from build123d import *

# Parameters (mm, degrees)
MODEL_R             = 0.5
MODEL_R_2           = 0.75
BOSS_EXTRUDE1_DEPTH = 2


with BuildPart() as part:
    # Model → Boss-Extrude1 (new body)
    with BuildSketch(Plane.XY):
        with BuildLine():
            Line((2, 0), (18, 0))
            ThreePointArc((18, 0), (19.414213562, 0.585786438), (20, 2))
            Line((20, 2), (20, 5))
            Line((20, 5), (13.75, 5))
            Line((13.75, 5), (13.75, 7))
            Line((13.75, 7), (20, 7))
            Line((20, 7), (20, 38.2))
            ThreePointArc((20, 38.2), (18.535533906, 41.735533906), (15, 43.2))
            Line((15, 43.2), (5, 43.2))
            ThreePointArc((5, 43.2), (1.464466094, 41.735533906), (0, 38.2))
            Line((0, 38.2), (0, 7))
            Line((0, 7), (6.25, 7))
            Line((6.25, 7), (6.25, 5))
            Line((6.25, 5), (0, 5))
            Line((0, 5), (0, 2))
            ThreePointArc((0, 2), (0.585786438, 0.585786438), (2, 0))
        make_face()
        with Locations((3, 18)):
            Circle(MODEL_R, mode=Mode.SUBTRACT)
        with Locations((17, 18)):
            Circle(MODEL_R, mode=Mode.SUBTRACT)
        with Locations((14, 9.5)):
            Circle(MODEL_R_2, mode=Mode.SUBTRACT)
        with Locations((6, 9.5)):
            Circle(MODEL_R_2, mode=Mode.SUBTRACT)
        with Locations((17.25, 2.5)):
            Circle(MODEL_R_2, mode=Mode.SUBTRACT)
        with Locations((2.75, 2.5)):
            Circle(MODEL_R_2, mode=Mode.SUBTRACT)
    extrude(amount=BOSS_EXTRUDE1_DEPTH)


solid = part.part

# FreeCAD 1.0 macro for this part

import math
import FreeCAD as App
import Part
import Sketcher
from FreeCAD import Vector
Q = App.Units.Quantity

doc = App.newDocument("Part")
params = doc.addObject("Spreadsheet::Sheet", "Params")
for row, (alias, value) in enumerate([
    ("sketch1_diameter", "1 mm"),
    ("sketch1_radius", "2 mm"),
    ("sketch1_radius2", "5 mm"),
    ("sketch1_diameter2", "1.5 mm"),
    ("sketch1_width", "16 mm"),
    ("pad1_length", "2 mm"),
], start=1):
    params.set(f"A{row}", alias)
    params.set(f"B{row}", "=" + value)
    params.setAlias(f"B{row}", alias)

body = doc.addObject("PartDesign::Body", "Body")

sketch1 = doc.addObject("Sketcher::SketchObject", "Sketch")
body.addObject(sketch1)
sketch1.AttachmentSupport = (doc.XY_Plane, [""])
sketch1.MapMode = "FlatFace"
sketch1.addGeometry([
    Part.LineSegment(Vector(2, 0, 0), Vector(18, 0, 0)),
    Part.ArcOfCircle(Part.Circle(Vector(18, 2, 0), Vector(0, 0, 1), 2), math.radians(-90), math.radians(0)),
    Part.LineSegment(Vector(20, 2, 0), Vector(20, 5, 0)),
    Part.LineSegment(Vector(20, 5, 0), Vector(13.75, 5, 0)),
    Part.LineSegment(Vector(13.75, 5, 0), Vector(13.75, 7, 0)),
    Part.LineSegment(Vector(13.75, 7, 0), Vector(20, 7, 0)),
    Part.LineSegment(Vector(20, 7, 0), Vector(20, 38.2, 0)),
    Part.ArcOfCircle(Part.Circle(Vector(15, 38.2, 0), Vector(0, 0, 1), 5), math.radians(0), math.radians(90)),
    Part.LineSegment(Vector(15, 43.2, 0), Vector(5, 43.2, 0)),
    Part.ArcOfCircle(Part.Circle(Vector(5, 38.2, 0), Vector(0, 0, 1), 5), math.radians(90), math.radians(180)),
    Part.LineSegment(Vector(0, 38.2, 0), Vector(0, 7, 0)),
    Part.LineSegment(Vector(0, 7, 0), Vector(6.25, 7, 0)),
    Part.LineSegment(Vector(6.25, 7, 0), Vector(6.25, 5, 0)),
    Part.LineSegment(Vector(6.25, 5, 0), Vector(0, 5, 0)),
    Part.LineSegment(Vector(0, 5, 0), Vector(0, 2, 0)),
    Part.ArcOfCircle(Part.Circle(Vector(2, 2, 0), Vector(0, 0, 1), 2), math.radians(-180), math.radians(-90)),
    Part.Circle(Vector(2.75, 2.5, 0), Vector(0, 0, 1), 0.75),
    Part.Circle(Vector(6, 9.5, 0), Vector(0, 0, 1), 0.75),
    Part.Circle(Vector(17.25, 2.5, 0), Vector(0, 0, 1), 0.75),
    Part.Circle(Vector(14, 9.5, 0), Vector(0, 0, 1), 0.75),
    Part.Circle(Vector(3, 18, 0), Vector(0, 0, 1), 0.5),
    Part.Circle(Vector(17, 18, 0), Vector(0, 0, 1), 0.5),
], False)
sketch1.addConstraint([
    Sketcher.Constraint("Tangent", 0, 2, 1, 1),
    Sketcher.Constraint("Tangent", 1, 2, 2, 1),
    Sketcher.Constraint("Coincident", 2, 2, 3, 1),
    Sketcher.Constraint("Coincident", 3, 2, 4, 1),
    Sketcher.Constraint("Coincident", 4, 2, 5, 1),
    Sketcher.Constraint("Coincident", 5, 2, 6, 1),
    Sketcher.Constraint("Tangent", 6, 2, 7, 1),
    Sketcher.Constraint("Tangent", 7, 2, 8, 1),
    Sketcher.Constraint("Tangent", 8, 2, 9, 1),
    Sketcher.Constraint("Tangent", 9, 2, 10, 1),
    Sketcher.Constraint("Coincident", 10, 2, 11, 1),
    Sketcher.Constraint("Coincident", 11, 2, 12, 1),
    Sketcher.Constraint("Coincident", 12, 2, 13, 1),
    Sketcher.Constraint("Coincident", 13, 2, 14, 1),
    Sketcher.Constraint("Tangent", 14, 2, 15, 1),
    Sketcher.Constraint("Tangent", 15, 2, 0, 1),
    Sketcher.Constraint("Horizontal", 0),
    Sketcher.Constraint("Vertical", 2),
    Sketcher.Constraint("Horizontal", 3),
    Sketcher.Constraint("Vertical", 4),
    Sketcher.Constraint("Horizontal", 5),
    Sketcher.Constraint("Vertical", 6),
    Sketcher.Constraint("Horizontal", 8),
    Sketcher.Constraint("Vertical", 10),
    Sketcher.Constraint("Horizontal", 11),
    Sketcher.Constraint("Vertical", 12),
    Sketcher.Constraint("Horizontal", 13),
    Sketcher.Constraint("Vertical", 14),
    Sketcher.Constraint("Equal", 7, 9),
    Sketcher.Constraint("Equal", 1, 15),
    Sketcher.Constraint("Equal", 16, 17),
    Sketcher.Constraint("Equal", 17, 18),
    Sketcher.Constraint("Equal", 18, 19),
    Sketcher.Constraint("Equal", 20, 21),
    Sketcher.Constraint("PointOnObject", 0, 2, -1),
    Sketcher.Constraint("PointOnObject", 9, 2, -2),
    Sketcher.Constraint("PointOnObject", 13, 2, -2),
    Sketcher.Constraint("Horizontal", 16, 3, 18, 3),
    Sketcher.Constraint("Horizontal", 17, 3, 19, 3),
    Sketcher.Constraint("Horizontal", 20, 3, 21, 3),
    Sketcher.Constraint("Horizontal", 5, 2, 10, 2),
    Sketcher.Constraint("Horizontal", 3, 2, 12, 2),
    Sketcher.Constraint("Vertical", 2, 2, 5, 2),
    Sketcher.Constraint("Equal", 5, 11),
    Sketcher.Constraint("Diameter", 20, Q("1 mm")),
    Sketcher.Constraint("Radius", 1, Q("2 mm")),
    Sketcher.Constraint("Radius", 7, Q("5 mm")),
    Sketcher.Constraint("Diameter", 16, Q("1.5 mm")),
    Sketcher.Constraint("DistanceX", 0, 1, 0, 2, Q("16 mm")),
    Sketcher.Constraint("DistanceY", 2, 1, 2, 2, Q("3 mm")),
    Sketcher.Constraint("DistanceY", 4, 1, 4, 2, Q("2 mm")),
    Sketcher.Constraint("DistanceY", 6, 1, 6, 2, Q("31.2 mm")),
    Sketcher.Constraint("DistanceX", -1, 1, 17, 3, Q("6 mm")),
    Sketcher.Constraint("DistanceX", -1, 1, 19, 3, Q("14 mm")),
    Sketcher.Constraint("DistanceX", -1, 1, 20, 3, Q("3 mm")),
    Sketcher.Constraint("DistanceY", -1, 1, 20, 3, Q("18 mm")),
    Sketcher.Constraint("DistanceX", -1, 1, 21, 3, Q("17 mm")),
    Sketcher.Constraint("DistanceY", 16, 3, 17, 3, Q("7 mm")),
    Sketcher.Constraint("DistanceX", 3, 2, 3, 1, Q("6.25 mm")),
    Sketcher.Constraint("DistanceY", -1, 1, 16, 3, Q("2.5 mm")),
    Sketcher.Constraint("DistanceX", 16, 3, 18, 3, Q("14.5 mm")),
    Sketcher.Constraint("DistanceX", 3, 2, 18, 3, Q("3.5 mm")),
])
sketch1.setExpression("Constraints[44]", "Params.sketch1_diameter")
sketch1.setExpression("Constraints[45]", "Params.sketch1_radius")
sketch1.setExpression("Constraints[46]", "Params.sketch1_radius2")
sketch1.setExpression("Constraints[47]", "Params.sketch1_diameter2")
sketch1.setExpression("Constraints[48]", "Params.sketch1_width")
pad1 = doc.addObject("PartDesign::Pad", "Pad")
body.addObject(pad1)
pad1.Profile = sketch1
pad1.setExpression("Length", "Params.pad1_length")

doc.recompute()
